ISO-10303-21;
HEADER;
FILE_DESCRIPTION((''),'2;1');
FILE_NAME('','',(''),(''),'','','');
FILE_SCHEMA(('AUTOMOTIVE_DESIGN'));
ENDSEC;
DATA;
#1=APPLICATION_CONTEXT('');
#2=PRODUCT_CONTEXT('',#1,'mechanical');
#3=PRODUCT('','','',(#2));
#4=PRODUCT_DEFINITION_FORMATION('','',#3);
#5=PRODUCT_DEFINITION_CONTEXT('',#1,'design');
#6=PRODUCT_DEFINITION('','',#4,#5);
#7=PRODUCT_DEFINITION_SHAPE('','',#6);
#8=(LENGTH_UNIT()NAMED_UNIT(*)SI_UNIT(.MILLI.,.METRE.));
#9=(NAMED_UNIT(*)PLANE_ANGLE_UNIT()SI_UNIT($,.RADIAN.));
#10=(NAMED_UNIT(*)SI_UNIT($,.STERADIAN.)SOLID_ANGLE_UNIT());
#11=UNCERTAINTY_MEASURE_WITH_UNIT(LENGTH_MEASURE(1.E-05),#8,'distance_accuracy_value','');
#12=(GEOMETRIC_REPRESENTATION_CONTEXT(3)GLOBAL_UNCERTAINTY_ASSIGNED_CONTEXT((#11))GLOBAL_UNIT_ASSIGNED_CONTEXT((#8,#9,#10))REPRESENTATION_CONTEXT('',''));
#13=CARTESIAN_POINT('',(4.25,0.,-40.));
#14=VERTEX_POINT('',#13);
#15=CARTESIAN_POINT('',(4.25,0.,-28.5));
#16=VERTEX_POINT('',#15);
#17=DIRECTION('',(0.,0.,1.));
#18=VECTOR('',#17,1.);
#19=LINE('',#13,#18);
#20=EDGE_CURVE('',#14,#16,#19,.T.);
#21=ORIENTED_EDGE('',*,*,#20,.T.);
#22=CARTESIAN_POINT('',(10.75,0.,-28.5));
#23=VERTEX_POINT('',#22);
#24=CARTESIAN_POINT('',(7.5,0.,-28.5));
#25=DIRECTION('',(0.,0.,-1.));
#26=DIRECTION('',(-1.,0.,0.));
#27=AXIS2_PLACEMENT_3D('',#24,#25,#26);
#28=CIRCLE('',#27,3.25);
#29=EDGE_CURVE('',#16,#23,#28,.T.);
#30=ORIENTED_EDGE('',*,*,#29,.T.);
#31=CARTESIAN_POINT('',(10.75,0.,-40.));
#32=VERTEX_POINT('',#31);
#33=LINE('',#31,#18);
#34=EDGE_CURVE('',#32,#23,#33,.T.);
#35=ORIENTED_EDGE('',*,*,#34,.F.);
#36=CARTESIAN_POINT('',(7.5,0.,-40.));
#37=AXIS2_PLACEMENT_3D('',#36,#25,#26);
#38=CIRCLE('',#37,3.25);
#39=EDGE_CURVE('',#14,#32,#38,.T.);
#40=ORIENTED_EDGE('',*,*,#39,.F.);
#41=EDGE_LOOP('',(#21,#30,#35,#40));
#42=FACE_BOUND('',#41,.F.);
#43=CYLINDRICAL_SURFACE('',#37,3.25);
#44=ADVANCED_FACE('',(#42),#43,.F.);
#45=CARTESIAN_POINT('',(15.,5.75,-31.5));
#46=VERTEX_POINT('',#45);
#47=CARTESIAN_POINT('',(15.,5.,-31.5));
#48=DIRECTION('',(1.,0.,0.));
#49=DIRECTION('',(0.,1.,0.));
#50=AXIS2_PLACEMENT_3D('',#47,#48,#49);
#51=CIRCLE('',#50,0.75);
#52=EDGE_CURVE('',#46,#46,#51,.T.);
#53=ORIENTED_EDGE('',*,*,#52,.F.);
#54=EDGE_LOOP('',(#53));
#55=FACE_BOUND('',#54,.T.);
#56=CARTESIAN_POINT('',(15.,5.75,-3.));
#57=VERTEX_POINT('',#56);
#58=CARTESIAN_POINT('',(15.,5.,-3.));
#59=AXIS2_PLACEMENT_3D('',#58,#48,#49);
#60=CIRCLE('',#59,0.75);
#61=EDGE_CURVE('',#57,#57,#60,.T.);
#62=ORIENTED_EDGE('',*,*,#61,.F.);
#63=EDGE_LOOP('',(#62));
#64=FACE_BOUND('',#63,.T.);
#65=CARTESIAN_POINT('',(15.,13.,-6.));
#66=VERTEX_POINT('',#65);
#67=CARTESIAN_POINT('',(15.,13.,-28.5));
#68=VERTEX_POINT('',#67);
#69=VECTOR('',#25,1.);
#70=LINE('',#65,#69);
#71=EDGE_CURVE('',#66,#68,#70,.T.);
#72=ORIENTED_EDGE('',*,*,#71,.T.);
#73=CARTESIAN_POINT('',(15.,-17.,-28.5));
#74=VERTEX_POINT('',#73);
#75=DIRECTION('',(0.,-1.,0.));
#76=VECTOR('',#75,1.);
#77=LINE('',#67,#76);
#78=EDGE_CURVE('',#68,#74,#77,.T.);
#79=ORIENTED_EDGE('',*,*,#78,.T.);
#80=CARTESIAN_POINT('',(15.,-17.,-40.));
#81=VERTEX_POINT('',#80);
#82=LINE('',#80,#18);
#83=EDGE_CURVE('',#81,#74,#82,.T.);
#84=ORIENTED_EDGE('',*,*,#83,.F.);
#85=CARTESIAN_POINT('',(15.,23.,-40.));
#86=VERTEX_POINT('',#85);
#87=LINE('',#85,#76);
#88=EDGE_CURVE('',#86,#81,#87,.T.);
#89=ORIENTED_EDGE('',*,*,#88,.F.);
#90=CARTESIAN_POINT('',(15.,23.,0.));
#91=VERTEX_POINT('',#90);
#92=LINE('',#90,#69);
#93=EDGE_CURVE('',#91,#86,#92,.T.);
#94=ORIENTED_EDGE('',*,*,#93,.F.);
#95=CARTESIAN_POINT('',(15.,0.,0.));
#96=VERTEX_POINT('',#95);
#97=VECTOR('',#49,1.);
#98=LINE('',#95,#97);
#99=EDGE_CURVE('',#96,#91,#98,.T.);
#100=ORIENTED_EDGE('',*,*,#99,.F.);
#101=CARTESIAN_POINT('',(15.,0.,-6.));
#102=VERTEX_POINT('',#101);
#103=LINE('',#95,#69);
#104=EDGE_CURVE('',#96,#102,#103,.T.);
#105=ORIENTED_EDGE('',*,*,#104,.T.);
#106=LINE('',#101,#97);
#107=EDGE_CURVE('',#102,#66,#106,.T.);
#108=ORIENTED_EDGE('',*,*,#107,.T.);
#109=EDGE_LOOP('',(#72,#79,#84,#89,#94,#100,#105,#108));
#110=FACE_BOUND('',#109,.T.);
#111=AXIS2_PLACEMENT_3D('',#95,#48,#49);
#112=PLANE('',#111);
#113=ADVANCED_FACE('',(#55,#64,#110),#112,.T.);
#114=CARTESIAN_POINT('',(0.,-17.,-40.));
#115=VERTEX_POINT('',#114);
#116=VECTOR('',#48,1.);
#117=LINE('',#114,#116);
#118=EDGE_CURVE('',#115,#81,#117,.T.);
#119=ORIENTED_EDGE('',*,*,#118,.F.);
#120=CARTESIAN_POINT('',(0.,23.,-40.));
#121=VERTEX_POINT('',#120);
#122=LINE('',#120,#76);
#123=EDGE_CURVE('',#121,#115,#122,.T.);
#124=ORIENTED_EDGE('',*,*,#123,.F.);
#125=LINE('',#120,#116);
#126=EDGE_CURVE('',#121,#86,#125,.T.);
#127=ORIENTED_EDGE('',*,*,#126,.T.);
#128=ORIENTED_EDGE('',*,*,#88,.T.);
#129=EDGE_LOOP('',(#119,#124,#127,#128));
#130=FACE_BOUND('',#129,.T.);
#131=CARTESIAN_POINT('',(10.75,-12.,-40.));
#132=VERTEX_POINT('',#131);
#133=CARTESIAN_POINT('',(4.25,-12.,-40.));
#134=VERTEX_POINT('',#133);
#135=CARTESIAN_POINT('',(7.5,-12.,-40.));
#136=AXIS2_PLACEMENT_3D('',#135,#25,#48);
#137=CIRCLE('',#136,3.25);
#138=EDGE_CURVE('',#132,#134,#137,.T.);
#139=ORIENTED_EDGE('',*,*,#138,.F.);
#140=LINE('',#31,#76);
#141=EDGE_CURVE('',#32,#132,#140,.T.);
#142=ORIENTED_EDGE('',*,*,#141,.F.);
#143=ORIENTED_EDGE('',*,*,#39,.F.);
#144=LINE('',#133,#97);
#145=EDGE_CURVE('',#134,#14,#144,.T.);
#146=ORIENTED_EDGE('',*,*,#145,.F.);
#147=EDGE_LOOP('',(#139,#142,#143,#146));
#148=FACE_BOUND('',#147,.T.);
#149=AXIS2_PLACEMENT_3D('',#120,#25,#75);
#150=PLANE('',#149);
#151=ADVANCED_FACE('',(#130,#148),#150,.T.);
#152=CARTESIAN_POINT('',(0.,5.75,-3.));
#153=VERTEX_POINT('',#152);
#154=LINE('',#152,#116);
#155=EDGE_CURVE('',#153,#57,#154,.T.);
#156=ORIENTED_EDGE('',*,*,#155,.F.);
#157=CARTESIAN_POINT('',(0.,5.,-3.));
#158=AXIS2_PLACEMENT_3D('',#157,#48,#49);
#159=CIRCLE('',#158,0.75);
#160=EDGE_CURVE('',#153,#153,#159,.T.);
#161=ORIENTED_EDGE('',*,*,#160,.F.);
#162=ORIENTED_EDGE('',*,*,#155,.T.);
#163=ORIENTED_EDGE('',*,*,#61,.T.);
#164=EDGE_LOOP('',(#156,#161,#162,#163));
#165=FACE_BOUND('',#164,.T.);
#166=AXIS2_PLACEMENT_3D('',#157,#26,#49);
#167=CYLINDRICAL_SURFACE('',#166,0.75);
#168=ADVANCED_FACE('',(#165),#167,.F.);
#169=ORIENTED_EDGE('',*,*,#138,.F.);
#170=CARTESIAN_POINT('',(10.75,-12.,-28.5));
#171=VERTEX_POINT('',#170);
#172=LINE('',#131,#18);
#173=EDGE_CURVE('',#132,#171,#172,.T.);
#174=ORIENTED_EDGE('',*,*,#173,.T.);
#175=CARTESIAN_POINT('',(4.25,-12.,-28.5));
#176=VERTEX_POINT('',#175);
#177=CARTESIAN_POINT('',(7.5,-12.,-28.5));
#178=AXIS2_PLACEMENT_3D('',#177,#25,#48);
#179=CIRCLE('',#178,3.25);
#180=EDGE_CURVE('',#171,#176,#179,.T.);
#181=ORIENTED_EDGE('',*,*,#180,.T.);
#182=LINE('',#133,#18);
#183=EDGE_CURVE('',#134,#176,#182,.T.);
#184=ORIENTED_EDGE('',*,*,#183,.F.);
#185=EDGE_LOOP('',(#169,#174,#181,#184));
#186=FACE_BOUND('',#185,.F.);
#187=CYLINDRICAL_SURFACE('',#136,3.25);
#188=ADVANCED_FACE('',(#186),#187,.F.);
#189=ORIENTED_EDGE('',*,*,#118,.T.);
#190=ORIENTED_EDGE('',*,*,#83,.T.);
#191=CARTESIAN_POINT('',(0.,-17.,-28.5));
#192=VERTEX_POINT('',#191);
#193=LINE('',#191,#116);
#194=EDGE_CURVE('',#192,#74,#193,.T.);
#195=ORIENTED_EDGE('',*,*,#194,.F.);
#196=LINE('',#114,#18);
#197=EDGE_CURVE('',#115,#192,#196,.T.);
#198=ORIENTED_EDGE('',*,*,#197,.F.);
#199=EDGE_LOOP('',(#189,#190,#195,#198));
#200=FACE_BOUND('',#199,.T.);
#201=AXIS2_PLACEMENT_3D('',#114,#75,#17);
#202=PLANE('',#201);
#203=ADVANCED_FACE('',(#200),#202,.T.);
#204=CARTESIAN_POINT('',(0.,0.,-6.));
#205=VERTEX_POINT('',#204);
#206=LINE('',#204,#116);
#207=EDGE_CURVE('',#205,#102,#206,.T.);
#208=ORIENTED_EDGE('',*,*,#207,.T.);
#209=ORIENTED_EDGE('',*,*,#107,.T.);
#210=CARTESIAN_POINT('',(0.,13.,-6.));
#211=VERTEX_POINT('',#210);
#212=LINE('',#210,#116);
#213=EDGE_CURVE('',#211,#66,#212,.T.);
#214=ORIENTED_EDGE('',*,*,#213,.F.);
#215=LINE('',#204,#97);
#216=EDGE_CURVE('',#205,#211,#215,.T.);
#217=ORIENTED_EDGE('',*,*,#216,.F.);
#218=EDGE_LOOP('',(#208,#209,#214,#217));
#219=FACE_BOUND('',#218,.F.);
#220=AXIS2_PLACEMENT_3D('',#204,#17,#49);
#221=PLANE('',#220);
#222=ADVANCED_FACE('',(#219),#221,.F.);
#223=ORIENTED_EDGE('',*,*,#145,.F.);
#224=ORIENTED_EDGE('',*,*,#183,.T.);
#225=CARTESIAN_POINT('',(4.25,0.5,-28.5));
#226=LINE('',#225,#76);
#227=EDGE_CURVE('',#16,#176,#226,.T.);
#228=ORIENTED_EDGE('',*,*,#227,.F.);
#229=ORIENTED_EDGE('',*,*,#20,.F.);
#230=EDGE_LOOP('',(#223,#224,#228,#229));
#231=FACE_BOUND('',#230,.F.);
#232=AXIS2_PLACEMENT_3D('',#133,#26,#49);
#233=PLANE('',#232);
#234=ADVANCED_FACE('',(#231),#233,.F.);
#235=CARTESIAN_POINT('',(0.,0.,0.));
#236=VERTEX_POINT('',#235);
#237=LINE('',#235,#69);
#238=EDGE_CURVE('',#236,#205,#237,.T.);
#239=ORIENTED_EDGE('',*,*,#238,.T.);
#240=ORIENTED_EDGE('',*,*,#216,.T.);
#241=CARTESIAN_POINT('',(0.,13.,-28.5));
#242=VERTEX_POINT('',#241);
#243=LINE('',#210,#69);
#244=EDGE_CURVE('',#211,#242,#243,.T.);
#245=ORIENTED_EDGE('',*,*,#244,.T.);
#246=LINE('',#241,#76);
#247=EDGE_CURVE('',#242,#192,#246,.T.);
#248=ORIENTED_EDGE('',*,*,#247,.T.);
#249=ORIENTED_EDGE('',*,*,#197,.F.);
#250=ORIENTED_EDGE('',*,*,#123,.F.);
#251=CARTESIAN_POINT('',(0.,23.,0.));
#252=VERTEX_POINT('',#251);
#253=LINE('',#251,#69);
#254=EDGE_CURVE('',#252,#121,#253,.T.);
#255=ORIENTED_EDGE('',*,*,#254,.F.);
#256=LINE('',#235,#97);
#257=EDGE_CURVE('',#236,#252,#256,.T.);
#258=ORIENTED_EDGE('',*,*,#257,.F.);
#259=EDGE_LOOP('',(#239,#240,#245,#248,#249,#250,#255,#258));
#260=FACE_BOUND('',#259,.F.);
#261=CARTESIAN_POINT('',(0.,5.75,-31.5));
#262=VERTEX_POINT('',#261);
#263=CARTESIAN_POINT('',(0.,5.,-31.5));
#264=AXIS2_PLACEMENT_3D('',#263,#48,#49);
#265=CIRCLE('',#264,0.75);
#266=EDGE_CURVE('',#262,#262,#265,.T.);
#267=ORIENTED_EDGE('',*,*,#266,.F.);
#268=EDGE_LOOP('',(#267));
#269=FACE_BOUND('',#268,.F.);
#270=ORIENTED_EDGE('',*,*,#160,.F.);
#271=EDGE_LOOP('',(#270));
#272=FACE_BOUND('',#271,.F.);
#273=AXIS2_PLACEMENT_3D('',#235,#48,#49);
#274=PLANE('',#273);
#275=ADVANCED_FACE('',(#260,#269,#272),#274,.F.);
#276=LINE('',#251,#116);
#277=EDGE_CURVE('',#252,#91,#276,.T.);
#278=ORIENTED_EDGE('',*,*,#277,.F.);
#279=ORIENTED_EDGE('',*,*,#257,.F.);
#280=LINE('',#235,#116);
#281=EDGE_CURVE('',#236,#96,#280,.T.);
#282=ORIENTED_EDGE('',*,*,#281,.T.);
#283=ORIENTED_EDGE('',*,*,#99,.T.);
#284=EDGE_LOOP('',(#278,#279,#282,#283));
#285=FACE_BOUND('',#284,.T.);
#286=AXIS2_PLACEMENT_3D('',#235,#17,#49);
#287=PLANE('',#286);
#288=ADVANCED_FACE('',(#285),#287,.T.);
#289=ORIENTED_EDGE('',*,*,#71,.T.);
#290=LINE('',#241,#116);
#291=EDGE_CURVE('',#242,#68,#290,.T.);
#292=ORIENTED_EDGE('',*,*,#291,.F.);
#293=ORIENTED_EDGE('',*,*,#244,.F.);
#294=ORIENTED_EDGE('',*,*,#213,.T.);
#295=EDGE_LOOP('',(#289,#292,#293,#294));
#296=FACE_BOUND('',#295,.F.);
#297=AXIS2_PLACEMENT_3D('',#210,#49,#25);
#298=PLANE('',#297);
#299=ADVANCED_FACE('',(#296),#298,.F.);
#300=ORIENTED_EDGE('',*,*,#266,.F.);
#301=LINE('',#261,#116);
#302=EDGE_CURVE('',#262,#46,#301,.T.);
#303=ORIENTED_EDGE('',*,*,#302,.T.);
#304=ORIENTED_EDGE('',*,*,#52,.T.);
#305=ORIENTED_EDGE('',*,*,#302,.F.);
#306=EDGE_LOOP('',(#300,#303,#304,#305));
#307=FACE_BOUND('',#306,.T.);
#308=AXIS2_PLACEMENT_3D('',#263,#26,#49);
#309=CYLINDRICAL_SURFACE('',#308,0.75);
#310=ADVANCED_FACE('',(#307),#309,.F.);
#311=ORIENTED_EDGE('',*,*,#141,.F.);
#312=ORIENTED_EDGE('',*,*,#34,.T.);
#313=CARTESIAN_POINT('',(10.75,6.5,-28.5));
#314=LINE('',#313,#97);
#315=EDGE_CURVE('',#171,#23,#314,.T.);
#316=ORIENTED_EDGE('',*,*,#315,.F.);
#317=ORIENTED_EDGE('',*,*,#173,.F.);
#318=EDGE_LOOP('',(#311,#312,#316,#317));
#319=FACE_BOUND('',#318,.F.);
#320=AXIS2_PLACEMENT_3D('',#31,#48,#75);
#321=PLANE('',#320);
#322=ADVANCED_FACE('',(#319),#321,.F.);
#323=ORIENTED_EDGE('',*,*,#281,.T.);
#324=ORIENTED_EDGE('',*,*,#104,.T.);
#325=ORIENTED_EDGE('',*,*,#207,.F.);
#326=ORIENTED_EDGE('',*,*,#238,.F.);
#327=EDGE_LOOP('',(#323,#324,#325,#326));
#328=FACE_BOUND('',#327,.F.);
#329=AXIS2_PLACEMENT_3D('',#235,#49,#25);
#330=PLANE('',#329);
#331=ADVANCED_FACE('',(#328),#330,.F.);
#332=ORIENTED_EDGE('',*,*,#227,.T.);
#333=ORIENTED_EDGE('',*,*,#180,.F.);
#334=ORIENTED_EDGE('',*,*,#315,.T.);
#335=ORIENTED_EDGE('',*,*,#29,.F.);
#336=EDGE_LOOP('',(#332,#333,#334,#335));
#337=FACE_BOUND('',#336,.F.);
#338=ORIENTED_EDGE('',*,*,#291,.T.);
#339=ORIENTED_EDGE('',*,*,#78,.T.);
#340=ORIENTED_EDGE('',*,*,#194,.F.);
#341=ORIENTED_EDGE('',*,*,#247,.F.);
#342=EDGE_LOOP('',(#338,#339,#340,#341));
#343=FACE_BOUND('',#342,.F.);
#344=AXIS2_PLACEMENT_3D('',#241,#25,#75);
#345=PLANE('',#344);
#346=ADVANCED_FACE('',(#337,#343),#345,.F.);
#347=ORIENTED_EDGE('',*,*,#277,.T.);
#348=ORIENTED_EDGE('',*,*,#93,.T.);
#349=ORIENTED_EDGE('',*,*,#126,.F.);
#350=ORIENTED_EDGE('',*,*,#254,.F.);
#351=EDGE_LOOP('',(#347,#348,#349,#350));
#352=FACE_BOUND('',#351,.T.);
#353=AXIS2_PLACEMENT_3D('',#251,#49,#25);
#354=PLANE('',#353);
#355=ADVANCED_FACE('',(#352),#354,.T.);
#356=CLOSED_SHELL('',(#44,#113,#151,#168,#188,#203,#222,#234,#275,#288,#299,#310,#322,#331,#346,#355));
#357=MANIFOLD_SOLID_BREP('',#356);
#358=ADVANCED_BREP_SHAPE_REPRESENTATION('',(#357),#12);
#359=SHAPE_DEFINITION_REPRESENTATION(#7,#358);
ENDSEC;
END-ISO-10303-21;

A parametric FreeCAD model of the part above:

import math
import FreeCAD as App
import Part
import Sketcher
Q = App.Units.Quantity


def add_polygon(sketch, points):
    """Adds a closed chain of lines whose ends are joined by coincident constraints."""
    first, n = sketch.GeometryCount, len(points)
    for a, b in zip(points, points[1:] + points[:1]):
        sketch.addGeometry(Part.LineSegment(App.Vector(*a, 0), App.Vector(*b, 0)), False)
    for i in range(n):
        sketch.addConstraint(Sketcher.Constraint("Coincident", first + i, 2, first + (i + 1) % n, 1))

doc = App.newDocument("Part")
body = doc.addObject("PartDesign::Body", "Body")

# Sketch on YZ plane
sketch1 = body.newObject("Sketcher::SketchObject", "Sketch")
sketch1.AttachmentSupport = (doc.getObject("YZ_Plane"), [""])
sketch1.MapMode = "FlatFace"
add_polygon(sketch1, [(23, 0), (0, 0), (0, -6), (13, -6), (13, -28.5), (-17, -28.5), (-17, -40), (23, -40)])  # lines 0-7
sketch1.addGeometry(Part.Circle(App.Vector(5, -31.5, 0), App.Vector(0, 0, 1), 0.8), False)  # 8
sketch1.addGeometry(Part.Circle(App.Vector(5, -3, 0), App.Vector(0, 0, 1), 0.8), False)  # 9
sketch1.addConstraint([
    Sketcher.Constraint("Horizontal", 0),
    Sketcher.Constraint("Vertical", 1),
    Sketcher.Constraint("Horizontal", 2),
    Sketcher.Constraint("Vertical", 3),
    Sketcher.Constraint("Horizontal", 4),
    Sketcher.Constraint("Vertical", 5),
    Sketcher.Constraint("Horizontal", 6),
    Sketcher.Constraint("Vertical", 7),
    Sketcher.Constraint("Coincident", 0, 2, -1, 1),
    Sketcher.Constraint("Equal", 8, 9),
    Sketcher.Constraint("Vertical", 8, 3, 9, 3),
    Sketcher.Constraint("Equal", 6, 7),
    Sketcher.Constraint("Diameter", 8, Q("1.5 mm")),
    Sketcher.Constraint("DistanceX", 2, 1, 2, 2, Q("13 mm")),
    Sketcher.Constraint("DistanceX", 4, 2, 4, 1, Q("30 mm")),
    Sketcher.Constraint("DistanceX", 6, 1, 6, 2, Q("40 mm")),
    Sketcher.Constraint("DistanceY", 1, 2, 1, 1, Q("6 mm")),
    Sketcher.Constraint("DistanceY", 3, 2, 3, 1, Q("22.5 mm")),
    Sketcher.Constraint("DistanceX", -1, 1, 8, 3, Q("5 mm")),
    Sketcher.Constraint("DistanceY", 9, 3, -1, 1, Q("3 mm")),
    Sketcher.Constraint("DistanceY", 8, 3, 3, 2, Q("3 mm")),
])
pad1 = body.newObject("PartDesign::Pad", "Pad")
pad1.Profile = sketch1
pad1.Length = 15

# Sketch on XY plane
sketch2 = body.newObject("Sketcher::SketchObject", "Sketch001")
sketch2.AttachmentSupport = (doc.getObject("XY_Plane"), [""])
sketch2.MapMode = "FlatFace"
sketch2.AttachmentOffset = App.Placement(App.Vector(0, 0, -40), App.Rotation())
sketch2.addGeometry([
    Part.ArcOfCircle(Part.Circle(App.Vector(7.5, 0, 0), App.Vector(0, 0, 1), 3.2), math.radians(0), math.radians(180)),
    Part.LineSegment(App.Vector(10.8, 0, 0), App.Vector(10.8, -12, 0)),
    Part.ArcOfCircle(Part.Circle(App.Vector(7.5, -12, 0), App.Vector(0, 0, 1), 3.2), math.radians(180), math.radians(360)),
    Part.LineSegment(App.Vector(4.2, -12, 0), App.Vector(4.2, 0, 0)),
], False)
sketch2.addConstraint([
    Sketcher.Constraint("Tangent", 0, 1, 1, 1),
    Sketcher.Constraint("Tangent", 1, 2, 2, 2),
    Sketcher.Constraint("Tangent", 2, 1, 3, 1),
    Sketcher.Constraint("Tangent", 3, 2, 0, 2),
    Sketcher.Constraint("Vertical", 1),
    Sketcher.Constraint("Vertical", 3),
    Sketcher.Constraint("PointOnObject", 0, 3, -1),
    Sketcher.Constraint("DistanceY", 1, 2, 1, 1, Q("12 mm")),
    Sketcher.Constraint("Radius", 0, Q("3.25 mm")),
    Sketcher.Constraint("DistanceX", -1, 1, 0, 3, Q("7.5 mm")),
])
pocket1 = body.newObject("PartDesign::Pocket", "Pocket")
pocket1.Profile = sketch2
pocket1.Type = "UpToFirst"
pocket1.Reversed = True

doc.recompute()
